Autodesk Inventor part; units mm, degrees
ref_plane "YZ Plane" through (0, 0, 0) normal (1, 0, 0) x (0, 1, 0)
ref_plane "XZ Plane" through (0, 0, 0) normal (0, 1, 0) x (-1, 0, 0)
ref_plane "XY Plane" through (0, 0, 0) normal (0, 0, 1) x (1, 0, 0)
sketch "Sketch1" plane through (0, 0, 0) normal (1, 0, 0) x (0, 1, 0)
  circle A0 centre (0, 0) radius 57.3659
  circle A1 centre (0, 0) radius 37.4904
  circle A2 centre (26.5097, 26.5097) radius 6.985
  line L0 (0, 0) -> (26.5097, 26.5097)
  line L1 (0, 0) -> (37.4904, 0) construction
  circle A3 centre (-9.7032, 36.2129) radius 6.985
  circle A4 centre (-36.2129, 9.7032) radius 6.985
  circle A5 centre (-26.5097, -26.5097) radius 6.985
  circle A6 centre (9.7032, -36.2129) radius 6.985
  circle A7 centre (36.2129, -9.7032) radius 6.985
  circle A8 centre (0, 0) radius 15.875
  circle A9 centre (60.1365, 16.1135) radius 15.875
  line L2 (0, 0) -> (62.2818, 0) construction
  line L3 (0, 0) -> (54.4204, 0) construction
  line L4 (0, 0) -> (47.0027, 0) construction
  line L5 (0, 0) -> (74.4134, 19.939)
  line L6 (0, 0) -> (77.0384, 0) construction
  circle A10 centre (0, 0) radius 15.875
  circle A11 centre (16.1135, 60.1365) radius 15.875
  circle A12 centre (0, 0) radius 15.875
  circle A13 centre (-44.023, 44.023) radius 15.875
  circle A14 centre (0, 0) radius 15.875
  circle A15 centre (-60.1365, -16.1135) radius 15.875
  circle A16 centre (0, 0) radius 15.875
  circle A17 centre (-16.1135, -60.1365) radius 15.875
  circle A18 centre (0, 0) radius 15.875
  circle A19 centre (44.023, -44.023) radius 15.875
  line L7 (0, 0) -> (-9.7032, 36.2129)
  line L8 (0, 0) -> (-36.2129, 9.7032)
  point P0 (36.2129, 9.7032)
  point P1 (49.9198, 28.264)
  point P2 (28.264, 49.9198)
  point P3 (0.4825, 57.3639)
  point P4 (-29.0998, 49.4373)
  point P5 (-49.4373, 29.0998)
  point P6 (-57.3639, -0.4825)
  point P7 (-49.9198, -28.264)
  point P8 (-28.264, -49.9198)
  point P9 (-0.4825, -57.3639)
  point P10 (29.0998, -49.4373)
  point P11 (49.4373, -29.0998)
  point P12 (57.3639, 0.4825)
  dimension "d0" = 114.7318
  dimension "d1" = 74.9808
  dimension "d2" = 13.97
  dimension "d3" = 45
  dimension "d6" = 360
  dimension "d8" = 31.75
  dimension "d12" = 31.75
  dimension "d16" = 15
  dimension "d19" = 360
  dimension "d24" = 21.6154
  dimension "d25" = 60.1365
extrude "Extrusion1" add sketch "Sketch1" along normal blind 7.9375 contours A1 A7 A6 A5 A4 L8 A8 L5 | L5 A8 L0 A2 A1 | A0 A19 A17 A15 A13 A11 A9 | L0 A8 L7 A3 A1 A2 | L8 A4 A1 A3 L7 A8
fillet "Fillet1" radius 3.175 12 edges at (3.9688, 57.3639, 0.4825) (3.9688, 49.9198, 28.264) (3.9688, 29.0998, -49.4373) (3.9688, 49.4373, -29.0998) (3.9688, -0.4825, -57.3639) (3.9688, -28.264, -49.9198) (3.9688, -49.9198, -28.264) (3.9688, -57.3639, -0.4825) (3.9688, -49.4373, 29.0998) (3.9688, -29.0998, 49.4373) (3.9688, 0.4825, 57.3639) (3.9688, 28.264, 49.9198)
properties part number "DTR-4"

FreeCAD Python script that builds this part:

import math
import FreeCAD as App
import Part
import Sketcher
from FreeCAD import Vector
Q = App.Units.Quantity


def edges_at(feature, points):
    """Names of the edges that pass closest to the given points."""
    edges = feature.Shape.Edges
    near = lambda p: min(range(len(edges)), key=lambda i: edges[i].distToShape(Part.Vertex(*p))[0])
    return sorted({f"Edge{near(p) + 1}" for p in points})

doc = App.newDocument("Part")
body = doc.addObject("PartDesign::Body", "Body")

sketch1 = body.newObject("Sketcher::SketchObject", "Sketch")
sketch1.AttachmentSupport = (doc.getObject("YZ_Plane"), [""])
sketch1.MapMode = "FlatFace"
sketch1.addGeometry(Part.ArcOfCircle(Part.Circle(Vector(0, 0, 0), Vector(0, 0, 1), 57), math.radians(-30), math.radians(0)), False)
sketch1.addGeometry(Part.ArcOfCircle(Part.Circle(Vector(60, 16, 0), Vector(0, 0, 1), 16), math.radians(-165), math.radians(-100)), False)
sketch1.addGeometry(Part.ArcOfCircle(Part.Circle(Vector(60, 16, 0), Vector(0, 0, 1), 16), math.radians(130), math.radians(195)), False)
sketch1.addGeometry(Part.ArcOfCircle(Part.Circle(Vector(0, 0, 0), Vector(0, 0, 1), 57), math.radians(30), math.radians(60)), False)
sketch1.addGeometry(Part.ArcOfCircle(Part.Circle(Vector(16, 60, 0), Vector(0, 0, 1), 16), math.radians(-170), math.radians(-40)), False)
sketch1.addGeometry(Part.ArcOfCircle(Part.Circle(Vector(0, 0, 0), Vector(0, 0, 1), 57), math.radians(90), math.radians(120)), False)
sketch1.addGeometry(Part.ArcOfCircle(Part.Circle(Vector(-44, 44, 0), Vector(0, 0, 1), 16), math.radians(-110), math.radians(20)), False)
sketch1.addGeometry(Part.ArcOfCircle(Part.Circle(Vector(0, 0, 0), Vector(0, 0, 1), 57), math.radians(150), math.radians(180)), False)
sketch1.addGeometry(Part.ArcOfCircle(Part.Circle(Vector(-60, -16, 0), Vector(0, 0, 1), 16), math.radians(-50), math.radians(80)), False)
sketch1.addGeometry(Part.ArcOfCircle(Part.Circle(Vector(0, 0, 0), Vector(0, 0, 1), 57), math.radians(-150), math.radians(-120)), False)
sketch1.addGeometry(Part.ArcOfCircle(Part.Circle(Vector(-16, -60, 0), Vector(0, 0, 1), 16), math.radians(10), math.radians(140)), False)
sketch1.addGeometry(Part.ArcOfCircle(Part.Circle(Vector(0, 0, 0), Vector(0, 0, 1), 57), math.radians(-90), math.radians(-60)), False)
sketch1.addGeometry(Part.ArcOfCircle(Part.Circle(Vector(44, -44, 0), Vector(0, 0, 1), 16), math.radians(70), math.radians(200)), False)
sketch1.addGeometry(Part.Circle(Vector(36, -10, 0), Vector(0, 0, 1), 7), False)
sketch1.addGeometry(Part.Circle(Vector(10, -36, 0), Vector(0, 0, 1), 7), False)
sketch1.addGeometry(Part.Circle(Vector(-27, -27, 0), Vector(0, 0, 1), 7), False)
sketch1.addGeometry(Part.Circle(Vector(-36, 10, 0), Vector(0, 0, 1), 7), False)
sketch1.addGeometry(Part.Circle(Vector(0, 0, 0), Vector(0, 0, 1), 16), False)
sketch1.addGeometry(Part.Circle(Vector(27, 27, 0), Vector(0, 0, 1), 7), False)
sketch1.addGeometry(Part.Circle(Vector(-10, 36, 0), Vector(0, 0, 1), 7), False)
sketch1.addConstraint(Sketcher.Constraint("Coincident", 0, 2, 1, 2))
sketch1.addConstraint(Sketcher.Constraint("Tangent", 1, 1, 2, 2))
sketch1.addConstraint(Sketcher.Constraint("Coincident", 2, 1, 3, 1))
sketch1.addConstraint(Sketcher.Constraint("Coincident", 3, 2, 4, 2))
sketch1.addConstraint(Sketcher.Constraint("Coincident", 4, 1, 5, 1))
sketch1.addConstraint(Sketcher.Constraint("Coincident", 5, 2, 6, 2))
sketch1.addConstraint(Sketcher.Constraint("Coincident", 6, 1, 7, 1))
sketch1.addConstraint(Sketcher.Constraint("Coincident", 7, 2, 8, 2))
sketch1.addConstraint(Sketcher.Constraint("Coincident", 8, 1, 9, 1))
sketch1.addConstraint(Sketcher.Constraint("Coincident", 9, 2, 10, 2))
sketch1.addConstraint(Sketcher.Constraint("Coincident", 10, 1, 11, 1))
sketch1.addConstraint(Sketcher.Constraint("Coincident", 11, 2, 12, 2))
sketch1.addConstraint(Sketcher.Constraint("Coincident", 12, 1, 0, 1))
sketch1.addConstraint(Sketcher.Constraint("Coincident", 0, 3, -1, 1))
sketch1.addConstraint(Sketcher.Constraint("Coincident", 3, 3, -1, 1))
sketch1.addConstraint(Sketcher.Constraint("Coincident", 5, 3, -1, 1))
sketch1.addConstraint(Sketcher.Constraint("Coincident", 7, 3, -1, 1))
sketch1.addConstraint(Sketcher.Constraint("Coincident", 9, 3, -1, 1))
sketch1.addConstraint(Sketcher.Constraint("Coincident", 11, 3, -1, 1))
sketch1.addConstraint(Sketcher.Constraint("Coincident", 17, 3, -1, 1))
sketch1.addConstraint(Sketcher.Constraint("Equal", 1, 2))
sketch1.addConstraint(Sketcher.Constraint("Equal", 0, 3))
sketch1.addConstraint(Sketcher.Constraint("Equal", 2, 4))
sketch1.addConstraint(Sketcher.Constraint("Equal", 3, 5))
sketch1.addConstraint(Sketcher.Constraint("Equal", 4, 6))
sketch1.addConstraint(Sketcher.Constraint("Equal", 5, 7))
sketch1.addConstraint(Sketcher.Constraint("Equal", 6, 8))
sketch1.addConstraint(Sketcher.Constraint("Equal", 7, 9))
sketch1.addConstraint(Sketcher.Constraint("Equal", 8, 10))
sketch1.addConstraint(Sketcher.Constraint("Equal", 9, 11))
sketch1.addConstraint(Sketcher.Constraint("Equal", 10, 12))
sketch1.addConstraint(Sketcher.Constraint("Equal", 13, 14))
sketch1.addConstraint(Sketcher.Constraint("Equal", 14, 15))
sketch1.addConstraint(Sketcher.Constraint("Equal", 15, 16))
sketch1.addConstraint(Sketcher.Constraint("Equal", 12, 17))
sketch1.addConstraint(Sketcher.Constraint("Equal", 16, 18))
sketch1.addConstraint(Sketcher.Constraint("Equal", 18, 19))
sketch1.addConstraint(Sketcher.Constraint("Symmetric", 1, 3, 8, 3, -1, 1))
sketch1.addConstraint(Sketcher.Constraint("Symmetric", 4, 3, 10, 3, -1, 1))
sketch1.addConstraint(Sketcher.Constraint("Symmetric", 6, 3, 12, 3, -1, 1))
sketch1.addConstraint(Sketcher.Constraint("Symmetric", 13, 3, 16, 3, -1, 1))
sketch1.addConstraint(Sketcher.Constraint("Symmetric", 15, 3, 18, 3, -1, 1))
sketch1.addConstraint(Sketcher.Constraint("Symmetric", 14, 3, 19, 3, -1, 1))
sketch1.addConstraint(Sketcher.Constraint("Diameter", 13, Q("0.55 in")))
sketch1.addConstraint(Sketcher.Constraint("Diameter", 17, Q("1.25 in")))
sketch1.addConstraint(Sketcher.Constraint("Radius", 0, Q("2.2585 in")))
sketch1.addConstraint(Sketcher.Constraint("DistanceX", -1, 1, 1, 3, Q("60.1365 mm")))
sketch1.addConstraint(Sketcher.Constraint("DistanceY", -1, 1, 4, 3, Q("60.1365 mm")))
sketch1.addConstraint(Sketcher.Constraint("DistanceX", 6, 3, 4, 3, Q("60.1365 mm")))
sketch1.addConstraint(Sketcher.Constraint("DistanceY", 8, 3, 6, 3, Q("60.1365 mm")))
sketch1.addConstraint(Sketcher.Constraint("DistanceY", -1, 1, 0, 2, Q("0.019 in")))
sketch1.addConstraint(Sketcher.Constraint("DistanceX", -1, 1, 4, 1, Q("0.019 in")))
sketch1.addConstraint(Sketcher.Constraint("DistanceY", 13, 3, 0, 2, Q("0.401 in")))
sketch1.addConstraint(Sketcher.Constraint("DistanceX", 19, 3, 4, 1, Q("0.401 in")))
sketch1.addConstraint(Sketcher.Constraint("DistanceX", -1, 1, 13, 3, Q("1.4257 in")))
sketch1.addConstraint(Sketcher.Constraint("DistanceY", 14, 3, -1, 1, Q("1.4257 in")))
sketch1.addConstraint(Sketcher.Constraint("DistanceX", 15, 3, -1, 1, Q("1.0437 in")))
sketch1.addConstraint(Sketcher.Constraint("DistanceY", 15, 3, -1, 1, Q("1.0437 in")))
sketch1.addConstraint(Sketcher.Constraint("DistanceX", 1, 1, 1, 3, Q("0.6037 in")))
pad1 = body.newObject("PartDesign::Pad", "Pad")
pad1.Profile = sketch1
pad1.Length = Q("0.3125 in")
doc.recompute()

fillet = body.newObject("PartDesign::Fillet", "Fillet")
fillet.Base = (pad1, edges_at(pad1, [
    (3.969, 57.364, 0.482),
    (3.969, 49.92, 28.264),
    (3.969, 29.1, -49.437),
    (3.969, 49.437, -29.1),
    (3.969, -0.482, -57.364),
    (3.969, -28.264, -49.92),
    (3.969, -49.92, -28.264),
    (3.969, -57.364, -0.482),
    (3.969, -49.437, 29.1),
    (3.969, -29.1, 49.437),
    (3.969, 0.482, 57.364),
    (3.969, 28.264, 49.92),
]))
fillet.Radius = Q("0.125 in")

doc.recompute()
